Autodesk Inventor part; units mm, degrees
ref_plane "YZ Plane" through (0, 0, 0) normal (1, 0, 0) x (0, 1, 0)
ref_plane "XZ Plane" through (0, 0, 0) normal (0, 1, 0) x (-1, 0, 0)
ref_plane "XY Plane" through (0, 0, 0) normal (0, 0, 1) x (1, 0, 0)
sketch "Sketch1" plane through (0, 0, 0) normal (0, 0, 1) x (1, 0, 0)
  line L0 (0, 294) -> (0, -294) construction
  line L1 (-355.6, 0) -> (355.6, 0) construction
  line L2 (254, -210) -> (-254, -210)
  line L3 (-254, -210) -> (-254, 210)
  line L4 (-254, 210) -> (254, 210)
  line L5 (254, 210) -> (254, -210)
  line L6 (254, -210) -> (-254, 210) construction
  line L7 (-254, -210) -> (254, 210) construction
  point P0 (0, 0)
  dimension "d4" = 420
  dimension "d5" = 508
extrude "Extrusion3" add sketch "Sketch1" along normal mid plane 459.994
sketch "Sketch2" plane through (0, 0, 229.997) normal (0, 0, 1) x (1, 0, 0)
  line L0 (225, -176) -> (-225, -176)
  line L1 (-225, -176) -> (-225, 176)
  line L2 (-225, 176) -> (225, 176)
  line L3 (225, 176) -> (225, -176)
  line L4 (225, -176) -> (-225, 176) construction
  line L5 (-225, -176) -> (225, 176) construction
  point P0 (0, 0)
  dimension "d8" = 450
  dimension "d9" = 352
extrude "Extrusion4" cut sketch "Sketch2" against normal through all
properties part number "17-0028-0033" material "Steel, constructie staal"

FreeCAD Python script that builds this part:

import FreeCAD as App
import Part
import Sketcher

V = App.Vector

doc = App.newDocument("Part")
body = doc.addObject("PartDesign::Body", "Body")

sketch1 = doc.addObject("Sketcher::SketchObject", "Sketch")
body.addObject(sketch1)
sketch1.AttachmentSupport = (doc.XY_Plane, [""])
sketch1.MapMode = "FlatFace"
sketch1.addGeometry(Part.LineSegment(V(-254, -210, 0), V(254, -210, 0)), False)
sketch1.addGeometry(Part.LineSegment(V(254, -210, 0), V(254, 210, 0)), False)
sketch1.addGeometry(Part.LineSegment(V(254, 210, 0), V(-254, 210, 0)), False)
sketch1.addGeometry(Part.LineSegment(V(-254, 210, 0), V(-254, -210, 0)), False)
sketch1.addConstraint(Sketcher.Constraint("Coincident", 0, 2, 1, 1))
sketch1.addConstraint(Sketcher.Constraint("Coincident", 1, 2, 2, 1))
sketch1.addConstraint(Sketcher.Constraint("Coincident", 2, 2, 3, 1))
sketch1.addConstraint(Sketcher.Constraint("Coincident", 3, 2, 0, 1))
sketch1.addConstraint(Sketcher.Constraint("Horizontal", 0))
sketch1.addConstraint(Sketcher.Constraint("Vertical", 1))
sketch1.addConstraint(Sketcher.Constraint("Horizontal", 2))
sketch1.addConstraint(Sketcher.Constraint("Vertical", 3))
sketch1.addConstraint(Sketcher.Constraint("Symmetric", 0, 2, 2, 2, -1, 1))
sketch1.addConstraint(Sketcher.Constraint("DistanceX", 0, 1, 0, 2, 508.0))
sketch1.addConstraint(Sketcher.Constraint("DistanceY", 1, 1, 1, 2, 420.0))
pad1 = doc.addObject("PartDesign::Pad", "Pad")
body.addObject(pad1)
pad1.Profile = sketch1
pad1.Length = 459.994
pad1.Midplane = True

sketch2 = doc.addObject("Sketcher::SketchObject", "Sketch001")
body.addObject(sketch2)
sketch2.AttachmentSupport = (doc.XY_Plane, [""])
sketch2.MapMode = "FlatFace"
sketch2.AttachmentOffset = App.Placement(V(0, 0, 229.997), App.Rotation())
sketch2.addGeometry(Part.LineSegment(V(-225, -176, 0), V(225, -176, 0)), False)
sketch2.addGeometry(Part.LineSegment(V(225, -176, 0), V(225, 176, 0)), False)
sketch2.addGeometry(Part.LineSegment(V(225, 176, 0), V(-225, 176, 0)), False)
sketch2.addGeometry(Part.LineSegment(V(-225, 176, 0), V(-225, -176, 0)), False)
sketch2.addConstraint(Sketcher.Constraint("Coincident", 0, 2, 1, 1))
sketch2.addConstraint(Sketcher.Constraint("Coincident", 1, 2, 2, 1))
sketch2.addConstraint(Sketcher.Constraint("Coincident", 2, 2, 3, 1))
sketch2.addConstraint(Sketcher.Constraint("Coincident", 3, 2, 0, 1))
sketch2.addConstraint(Sketcher.Constraint("Horizontal", 0))
sketch2.addConstraint(Sketcher.Constraint("Vertical", 1))
sketch2.addConstraint(Sketcher.Constraint("Horizontal", 2))
sketch2.addConstraint(Sketcher.Constraint("Vertical", 3))
sketch2.addConstraint(Sketcher.Constraint("Symmetric", 0, 2, 2, 2, -1, 1))
sketch2.addConstraint(Sketcher.Constraint("DistanceX", 0, 1, 0, 2, 450.0))
sketch2.addConstraint(Sketcher.Constraint("DistanceY", 1, 1, 1, 2, 352.0))
pocket1 = doc.addObject("PartDesign::Pocket", "Pocket")
body.addObject(pocket1)
pocket1.Profile = sketch2
pocket1.Type = "ThroughAll"

doc.recompute()
